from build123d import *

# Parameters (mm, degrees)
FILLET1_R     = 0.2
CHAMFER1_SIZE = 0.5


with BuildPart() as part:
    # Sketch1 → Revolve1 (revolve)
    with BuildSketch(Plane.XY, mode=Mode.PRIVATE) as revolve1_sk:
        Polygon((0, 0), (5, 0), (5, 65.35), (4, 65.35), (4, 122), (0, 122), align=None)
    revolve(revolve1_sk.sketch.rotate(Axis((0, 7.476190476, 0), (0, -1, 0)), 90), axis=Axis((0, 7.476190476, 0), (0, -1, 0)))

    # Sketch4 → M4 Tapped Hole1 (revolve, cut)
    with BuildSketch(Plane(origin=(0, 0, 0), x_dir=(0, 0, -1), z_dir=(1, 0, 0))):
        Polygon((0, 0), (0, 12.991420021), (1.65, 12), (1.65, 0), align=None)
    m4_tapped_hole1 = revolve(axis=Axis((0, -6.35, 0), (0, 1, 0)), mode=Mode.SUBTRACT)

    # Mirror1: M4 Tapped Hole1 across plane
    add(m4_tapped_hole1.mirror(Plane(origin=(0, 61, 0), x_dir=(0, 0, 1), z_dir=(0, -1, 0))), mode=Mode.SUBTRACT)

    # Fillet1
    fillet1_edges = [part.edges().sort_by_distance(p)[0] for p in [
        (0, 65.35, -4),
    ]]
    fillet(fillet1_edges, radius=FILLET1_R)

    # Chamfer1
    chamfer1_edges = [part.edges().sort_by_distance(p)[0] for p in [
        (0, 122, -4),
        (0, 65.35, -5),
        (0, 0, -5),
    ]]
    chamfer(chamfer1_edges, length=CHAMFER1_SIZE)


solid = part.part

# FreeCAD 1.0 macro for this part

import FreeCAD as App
import Part
import Sketcher
Q = App.Units.Quantity


def edges_at(feature, points):
    """Names of the edges that pass closest to the given points."""
    edges = feature.Shape.Edges
    near = lambda p: min(range(len(edges)), key=lambda i: edges[i].distToShape(Part.Vertex(*p))[0])
    return sorted({f"Edge{near(p) + 1}" for p in points})


def add_polygon(sketch, points):
    """Adds a closed chain of lines whose ends are joined by coincident constraints."""
    first, n = sketch.GeometryCount, len(points)
    for a, b in zip(points, points[1:] + points[:1]):
        sketch.addGeometry(Part.LineSegment(App.Vector(*a, 0), App.Vector(*b, 0)), False)
    for i in range(n):
        sketch.addConstraint(Sketcher.Constraint("Coincident", first + i, 2, first + (i + 1) % n, 1))

doc = App.newDocument("Part")
body = doc.addObject("PartDesign::Body", "Body")

sketch1 = doc.addObject("Sketcher::SketchObject", "Sketch")
body.addObject(sketch1)
sketch1.AttachmentSupport = (doc.XY_Plane, [""])
sketch1.MapMode = "FlatFace"
add_polygon(sketch1, [(0, 0), (5, 0), (5, 65.3), (4, 65.3), (4, 122), (0, 122)])
sketch1.addConstraint([
    Sketcher.Constraint("Horizontal", 0),
    Sketcher.Constraint("Vertical", 1),
    Sketcher.Constraint("Horizontal", 2),
    Sketcher.Constraint("Vertical", 3),
    Sketcher.Constraint("Horizontal", 4),
    Sketcher.Constraint("Vertical", 5),
    Sketcher.Constraint("Coincident", 5, 2, -1, 1),
    Sketcher.Constraint("DistanceX", 0, 1, 0, 2, 5.0),
    Sketcher.Constraint("DistanceX", 2, 2, 2, 1, 1.0),
    Sketcher.Constraint("DistanceY", 5, 2, 5, 1, 122.0),
    Sketcher.Constraint("DistanceY", 1, 1, 1, 2, 65.35),
])
revolution = doc.addObject("PartDesign::Revolution", "Revolution")
body.addObject(revolution)
revolution.Profile = sketch1
revolution.ReferenceAxis = (sketch1, ["V_Axis"])
revolution.Angle = 360

sketch2 = doc.addObject("Sketcher::SketchObject", "Sketch001")
body.addObject(sketch2)
sketch2.AttachmentSupport = (doc.YZ_Plane, [""])
sketch2.MapMode = "FlatFace"
add_polygon(sketch2, [(13, 0), (0, 0), (0, -1.6), (12, -1.6)])
sketch2.addConstraint([
    Sketcher.Constraint("Horizontal", 0),
    Sketcher.Constraint("Vertical", 1),
    Sketcher.Constraint("Horizontal", 2),
    Sketcher.Constraint("Coincident", 0, 2, -1, 1),
    Sketcher.Constraint("DistanceX", 2, 1, 2, 2, 12.0),
    Sketcher.Constraint("Angle", 3, Q("59 deg")),
    Sketcher.Constraint("DistanceY", 1, 2, 1, 1, 1.65),
])
groove = doc.addObject("PartDesign::Groove", "Groove")
body.addObject(groove)
groove.Profile = sketch2
groove.ReferenceAxis = (sketch2, ["H_Axis"])
groove.Angle = 360
doc.recompute()

datumplane = doc.addObject("PartDesign::Plane", "DatumPlane")
body.addObject(datumplane)
datumplane.AttachmentSupport = (doc.XZ_Plane, [""])
datumplane.MapMode = "FlatFace"
datumplane.AttachmentOffset = App.Placement(App.Vector(0, 0, -61), App.Rotation())
mirrored = doc.addObject("PartDesign::Mirrored", "Mirrored")
body.addObject(mirrored)
mirrored.Originals = [groove]
mirrored.MirrorPlane = (datumplane, [""])
body.Tip = mirrored
doc.recompute()

fillet = doc.addObject("PartDesign::Fillet", "Fillet")
body.addObject(fillet)
fillet.Base = (mirrored, edges_at(mirrored, [(0, 65.35, -4)]))
fillet.Radius = 0.2
doc.recompute()

chamfer = doc.addObject("PartDesign::Chamfer", "Chamfer")
body.addObject(chamfer)
chamfer.Base = (fillet, edges_at(fillet, [(0, 122, -4), (0, 65.35, -5), (0, 0, -5)]))
chamfer.Size = 0.5

doc.recompute()
